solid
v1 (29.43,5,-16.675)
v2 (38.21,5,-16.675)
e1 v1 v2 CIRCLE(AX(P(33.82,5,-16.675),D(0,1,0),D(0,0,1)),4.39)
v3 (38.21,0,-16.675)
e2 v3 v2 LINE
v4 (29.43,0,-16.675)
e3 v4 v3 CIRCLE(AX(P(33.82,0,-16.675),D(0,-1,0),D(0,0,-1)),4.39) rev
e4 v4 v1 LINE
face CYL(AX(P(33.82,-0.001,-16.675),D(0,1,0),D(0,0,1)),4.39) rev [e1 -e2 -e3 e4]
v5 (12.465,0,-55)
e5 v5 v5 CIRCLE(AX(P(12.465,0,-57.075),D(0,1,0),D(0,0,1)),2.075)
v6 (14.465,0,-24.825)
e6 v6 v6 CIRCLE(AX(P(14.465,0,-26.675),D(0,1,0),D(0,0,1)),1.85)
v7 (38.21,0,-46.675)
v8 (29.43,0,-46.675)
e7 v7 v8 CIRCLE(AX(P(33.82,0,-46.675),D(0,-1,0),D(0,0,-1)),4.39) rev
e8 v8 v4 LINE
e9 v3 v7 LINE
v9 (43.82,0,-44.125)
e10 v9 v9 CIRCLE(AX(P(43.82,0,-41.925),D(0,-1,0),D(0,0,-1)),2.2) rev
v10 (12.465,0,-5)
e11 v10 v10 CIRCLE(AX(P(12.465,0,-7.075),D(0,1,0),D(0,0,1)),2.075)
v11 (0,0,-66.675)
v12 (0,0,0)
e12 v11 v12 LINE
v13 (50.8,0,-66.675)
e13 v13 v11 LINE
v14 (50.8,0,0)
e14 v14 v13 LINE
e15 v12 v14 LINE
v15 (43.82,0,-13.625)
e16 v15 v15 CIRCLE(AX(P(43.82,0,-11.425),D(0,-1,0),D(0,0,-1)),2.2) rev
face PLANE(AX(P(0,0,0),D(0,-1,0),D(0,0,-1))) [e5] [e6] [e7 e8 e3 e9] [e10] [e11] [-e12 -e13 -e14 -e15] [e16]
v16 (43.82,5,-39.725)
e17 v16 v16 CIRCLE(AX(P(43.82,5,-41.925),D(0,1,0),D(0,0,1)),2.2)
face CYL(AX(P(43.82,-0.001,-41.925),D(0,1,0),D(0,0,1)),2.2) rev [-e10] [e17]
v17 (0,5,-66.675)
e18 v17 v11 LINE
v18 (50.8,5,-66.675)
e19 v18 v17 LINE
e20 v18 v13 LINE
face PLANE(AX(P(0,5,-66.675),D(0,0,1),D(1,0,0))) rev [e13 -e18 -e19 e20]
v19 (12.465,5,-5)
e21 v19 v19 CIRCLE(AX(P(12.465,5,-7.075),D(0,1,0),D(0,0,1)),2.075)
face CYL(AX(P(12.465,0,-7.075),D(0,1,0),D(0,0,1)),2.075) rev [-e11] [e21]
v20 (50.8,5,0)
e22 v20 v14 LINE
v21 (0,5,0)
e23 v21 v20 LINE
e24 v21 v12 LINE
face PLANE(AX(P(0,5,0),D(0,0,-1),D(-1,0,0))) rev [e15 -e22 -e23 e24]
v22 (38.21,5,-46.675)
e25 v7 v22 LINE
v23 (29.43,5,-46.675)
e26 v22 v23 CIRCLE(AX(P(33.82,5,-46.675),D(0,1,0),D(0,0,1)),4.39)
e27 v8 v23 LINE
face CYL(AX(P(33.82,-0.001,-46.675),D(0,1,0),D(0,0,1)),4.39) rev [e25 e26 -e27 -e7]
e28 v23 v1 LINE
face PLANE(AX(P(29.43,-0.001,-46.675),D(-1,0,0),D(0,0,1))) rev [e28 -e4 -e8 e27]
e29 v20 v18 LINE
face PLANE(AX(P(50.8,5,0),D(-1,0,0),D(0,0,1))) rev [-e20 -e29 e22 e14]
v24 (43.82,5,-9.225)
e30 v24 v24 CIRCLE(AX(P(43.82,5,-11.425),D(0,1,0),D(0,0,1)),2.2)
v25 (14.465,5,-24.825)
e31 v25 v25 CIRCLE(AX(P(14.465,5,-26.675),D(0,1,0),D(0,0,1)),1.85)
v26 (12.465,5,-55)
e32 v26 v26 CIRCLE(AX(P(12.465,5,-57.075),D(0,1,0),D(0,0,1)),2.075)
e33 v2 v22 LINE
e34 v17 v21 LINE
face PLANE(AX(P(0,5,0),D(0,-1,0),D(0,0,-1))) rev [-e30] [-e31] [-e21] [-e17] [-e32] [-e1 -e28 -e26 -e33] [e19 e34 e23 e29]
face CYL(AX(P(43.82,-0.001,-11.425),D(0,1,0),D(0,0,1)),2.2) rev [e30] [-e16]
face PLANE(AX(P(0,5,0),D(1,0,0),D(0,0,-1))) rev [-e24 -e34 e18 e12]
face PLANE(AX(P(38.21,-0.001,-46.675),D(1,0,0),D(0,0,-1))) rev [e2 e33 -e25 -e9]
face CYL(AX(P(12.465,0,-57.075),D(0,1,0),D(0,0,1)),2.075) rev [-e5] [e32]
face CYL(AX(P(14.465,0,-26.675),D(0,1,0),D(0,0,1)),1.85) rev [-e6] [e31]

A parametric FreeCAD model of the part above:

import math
import FreeCAD as App
import Part
import Sketcher

doc = App.newDocument("Part")
params = doc.addObject("Spreadsheet::Sheet", "Params")
for row, (alias, value) in enumerate([
    ("sketch1_width", "50.8 mm"),
    ("pad1_length", "5 mm"),
    ("sketch2_diameter", "3.7 mm"),
    ("sketch2_diameter2", "4.15 mm"),
    ("sketch3_diameter", "4.4 mm"),
    ("sketch4_diameter", "4.4 mm"),
    ("sketch5_height", "30 mm"),
    ("sketch5_radius", "4.39 mm"),
], start=1):
    params.set(f"A{row}", alias)
    params.set(f"B{row}", "=" + value)
    params.setAlias(f"B{row}", alias)

body = doc.addObject("PartDesign::Body", "Body")

# Sketch on XZ plane
sketch1 = doc.addObject("Sketcher::SketchObject", "Sketch")
body.addObject(sketch1)
sketch1.AttachmentSupport = (doc.XZ_Plane, [""])
sketch1.MapMode = "FlatFace"
sketch1.addGeometry(Part.LineSegment(App.Vector(0, -67, 0), App.Vector(0, 0, 0)), False)
sketch1.addGeometry(Part.LineSegment(App.Vector(0, 0, 0), App.Vector(51, 0, 0)), False)
sketch1.addGeometry(Part.LineSegment(App.Vector(51, 0, 0), App.Vector(51, -67, 0)), False)
sketch1.addGeometry(Part.LineSegment(App.Vector(51, -67, 0), App.Vector(0, -67, 0)), False)
sketch1.addConstraint(Sketcher.Constraint("Coincident", 0, 2, 1, 1))
sketch1.addConstraint(Sketcher.Constraint("Coincident", 1, 2, 2, 1))
sketch1.addConstraint(Sketcher.Constraint("Coincident", 2, 2, 3, 1))
sketch1.addConstraint(Sketcher.Constraint("Coincident", 3, 2, 0, 1))
sketch1.addConstraint(Sketcher.Constraint("Vertical", 0))
sketch1.addConstraint(Sketcher.Constraint("Horizontal", 1))
sketch1.addConstraint(Sketcher.Constraint("Vertical", 2))
sketch1.addConstraint(Sketcher.Constraint("Horizontal", 3))
sketch1.addConstraint(Sketcher.Constraint("Coincident", 0, 2, -1, 1))
sketch1.addConstraint(Sketcher.Constraint("DistanceX", 1, 1, 1, 2, 50.8))
sketch1.addConstraint(Sketcher.Constraint("DistanceY", 0, 1, 0, 2, 66.675))
sketch1.setExpression("Constraints[9]", "Params.sketch1_width")
pad1 = doc.addObject("PartDesign::Pad", "Pad")
body.addObject(pad1)
pad1.Profile = sketch1
pad1.setExpression("Length", "Params.pad1_length")
pad1.Reversed = True

# Sketch on XZ plane
sketch2 = doc.addObject("Sketcher::SketchObject", "Sketch001")
body.addObject(sketch2)
sketch2.AttachmentSupport = (doc.XZ_Plane, [""])
sketch2.MapMode = "FlatFace"
sketch2.AttachmentOffset = App.Placement(App.Vector(0, 0, -5), App.Rotation())
sketch2.addGeometry(Part.Circle(App.Vector(12.5, -57.1, 0), App.Vector(0, 0, 1), 2.1), False)
sketch2.addGeometry(Part.Circle(App.Vector(12.5, -7.1, 0), App.Vector(0, 0, 1), 2.1), False)
sketch2.addGeometry(Part.Circle(App.Vector(14.5, -26.7, 0), App.Vector(0, 0, 1), 1.9), False)
sketch2.addConstraint(Sketcher.Constraint("Equal", 0, 1))
sketch2.addConstraint(Sketcher.Constraint("Vertical", 0, 3, 1, 3))
sketch2.addConstraint(Sketcher.Constraint("Diameter", 2, 3.7))
sketch2.addConstraint(Sketcher.Constraint("Diameter", 0, 4.15))
sketch2.addConstraint(Sketcher.Constraint("DistanceY", 0, 3, 1, 3, 50.0))
sketch2.addConstraint(Sketcher.Constraint("DistanceX", 1, 3, 2, 3, 2.0))
sketch2.addConstraint(Sketcher.Constraint("DistanceY", 2, 3, 1, 3, 19.6))
sketch2.addConstraint(Sketcher.Constraint("DistanceX", -1, 1, 0, 3, 12.465))
sketch2.addConstraint(Sketcher.Constraint("DistanceY", 0, 3, -1, 1, 57.075))
sketch2.setExpression("Constraints[2]", "Params.sketch2_diameter")
sketch2.setExpression("Constraints[3]", "Params.sketch2_diameter2")
pocket1 = doc.addObject("PartDesign::Pocket", "Pocket")
body.addObject(pocket1)
pocket1.Profile = sketch2
pocket1.Type = "ThroughAll"
pocket1.Reversed = True

# Sketch on XZ plane
sketch3 = doc.addObject("Sketcher::SketchObject", "Sketch002")
body.addObject(sketch3)
sketch3.AttachmentSupport = (doc.XZ_Plane, [""])
sketch3.MapMode = "FlatFace"
sketch3.AttachmentOffset = App.Placement(App.Vector(0, 0, -5), App.Rotation())
sketch3.addGeometry(Part.Circle(App.Vector(43.8, -41.9, 0), App.Vector(0, 0, 1), 2.2), False)
sketch3.addConstraint(Sketcher.Constraint("Diameter", 0, 4.4))
sketch3.addConstraint(Sketcher.Constraint("DistanceX", -1, 1, 0, 3, 43.82))
sketch3.addConstraint(Sketcher.Constraint("DistanceY", 0, 3, -1, 1, 41.925))
sketch3.setExpression("Constraints[0]", "Params.sketch3_diameter")
pocket2 = doc.addObject("PartDesign::Pocket", "Pocket001")
body.addObject(pocket2)
pocket2.Profile = sketch3
pocket2.Type = "UpToFirst"
pocket2.Reversed = True

# Sketch on XZ plane
sketch4 = doc.addObject("Sketcher::SketchObject", "Sketch003")
body.addObject(sketch4)
sketch4.AttachmentSupport = (doc.XZ_Plane, [""])
sketch4.MapMode = "FlatFace"
sketch4.AttachmentOffset = App.Placement(App.Vector(0, 0, -5), App.Rotation())
sketch4.addGeometry(Part.Circle(App.Vector(43.8, -11.4, 0), App.Vector(0, 0, 1), 2.2), False)
sketch4.addConstraint(Sketcher.Constraint("Diameter", 0, 4.4))
sketch4.addConstraint(Sketcher.Constraint("DistanceX", -1, 1, 0, 3, 43.82))
sketch4.addConstraint(Sketcher.Constraint("DistanceY", 0, 3, -1, 1, 11.425))
sketch4.setExpression("Constraints[0]", "Params.sketch4_diameter")
pocket3 = doc.addObject("PartDesign::Pocket", "Pocket002")
body.addObject(pocket3)
pocket3.Profile = sketch4
pocket3.Type = "UpToFirst"
pocket3.Reversed = True

# Sketch on XZ plane
sketch5 = doc.addObject("Sketcher::SketchObject", "Sketch004")
body.addObject(sketch5)
sketch5.AttachmentSupport = (doc.XZ_Plane, [""])
sketch5.MapMode = "FlatFace"
sketch5.AttachmentOffset = App.Placement(App.Vector(0, 0, -5), App.Rotation())
sketch5.addGeometry(Part.LineSegment(App.Vector(38.2, -16.7, 0), App.Vector(38.2, -46.7, 0)), False)
sketch5.addGeometry(Part.ArcOfCircle(Part.Circle(App.Vector(33.8, -46.7, 0), App.Vector(0, 0, 1), 4.4), math.radians(180), math.radians(360)), False)
sketch5.addGeometry(Part.LineSegment(App.Vector(29.4, -46.7, 0), App.Vector(29.4, -16.7, 0)), False)
sketch5.addGeometry(Part.ArcOfCircle(Part.Circle(App.Vector(33.8, -16.7, 0), App.Vector(0, 0, 1), 4.4), math.radians(0), math.radians(180)), False)
sketch5.addConstraint(Sketcher.Constraint("Tangent", 0, 2, 1, 2))
sketch5.addConstraint(Sketcher.Constraint("Tangent", 1, 1, 2, 1))
sketch5.addConstraint(Sketcher.Constraint("Tangent", 2, 2, 3, 2))
sketch5.addConstraint(Sketcher.Constraint("Tangent", 3, 1, 0, 1))
sketch5.addConstraint(Sketcher.Constraint("Vertical", 0))
sketch5.addConstraint(Sketcher.Constraint("Vertical", 2))
sketch5.addConstraint(Sketcher.Constraint("DistanceY", 0, 2, 0, 1, 30.0))
sketch5.addConstraint(Sketcher.Constraint("Radius", 1, 4.39))
sketch5.addConstraint(Sketcher.Constraint("DistanceX", -1, 1, 1, 3, 33.82))
sketch5.addConstraint(Sketcher.Constraint("DistanceY", 1, 3, -1, 1, 46.675))
sketch5.setExpression("Constraints[6]", "Params.sketch5_height")
sketch5.setExpression("Constraints[7]", "Params.sketch5_radius")
pocket4 = doc.addObject("PartDesign::Pocket", "Pocket003")
body.addObject(pocket4)
pocket4.Profile = sketch5
pocket4.Type = "UpToFirst"
pocket4.Reversed = True

doc.recompute()
